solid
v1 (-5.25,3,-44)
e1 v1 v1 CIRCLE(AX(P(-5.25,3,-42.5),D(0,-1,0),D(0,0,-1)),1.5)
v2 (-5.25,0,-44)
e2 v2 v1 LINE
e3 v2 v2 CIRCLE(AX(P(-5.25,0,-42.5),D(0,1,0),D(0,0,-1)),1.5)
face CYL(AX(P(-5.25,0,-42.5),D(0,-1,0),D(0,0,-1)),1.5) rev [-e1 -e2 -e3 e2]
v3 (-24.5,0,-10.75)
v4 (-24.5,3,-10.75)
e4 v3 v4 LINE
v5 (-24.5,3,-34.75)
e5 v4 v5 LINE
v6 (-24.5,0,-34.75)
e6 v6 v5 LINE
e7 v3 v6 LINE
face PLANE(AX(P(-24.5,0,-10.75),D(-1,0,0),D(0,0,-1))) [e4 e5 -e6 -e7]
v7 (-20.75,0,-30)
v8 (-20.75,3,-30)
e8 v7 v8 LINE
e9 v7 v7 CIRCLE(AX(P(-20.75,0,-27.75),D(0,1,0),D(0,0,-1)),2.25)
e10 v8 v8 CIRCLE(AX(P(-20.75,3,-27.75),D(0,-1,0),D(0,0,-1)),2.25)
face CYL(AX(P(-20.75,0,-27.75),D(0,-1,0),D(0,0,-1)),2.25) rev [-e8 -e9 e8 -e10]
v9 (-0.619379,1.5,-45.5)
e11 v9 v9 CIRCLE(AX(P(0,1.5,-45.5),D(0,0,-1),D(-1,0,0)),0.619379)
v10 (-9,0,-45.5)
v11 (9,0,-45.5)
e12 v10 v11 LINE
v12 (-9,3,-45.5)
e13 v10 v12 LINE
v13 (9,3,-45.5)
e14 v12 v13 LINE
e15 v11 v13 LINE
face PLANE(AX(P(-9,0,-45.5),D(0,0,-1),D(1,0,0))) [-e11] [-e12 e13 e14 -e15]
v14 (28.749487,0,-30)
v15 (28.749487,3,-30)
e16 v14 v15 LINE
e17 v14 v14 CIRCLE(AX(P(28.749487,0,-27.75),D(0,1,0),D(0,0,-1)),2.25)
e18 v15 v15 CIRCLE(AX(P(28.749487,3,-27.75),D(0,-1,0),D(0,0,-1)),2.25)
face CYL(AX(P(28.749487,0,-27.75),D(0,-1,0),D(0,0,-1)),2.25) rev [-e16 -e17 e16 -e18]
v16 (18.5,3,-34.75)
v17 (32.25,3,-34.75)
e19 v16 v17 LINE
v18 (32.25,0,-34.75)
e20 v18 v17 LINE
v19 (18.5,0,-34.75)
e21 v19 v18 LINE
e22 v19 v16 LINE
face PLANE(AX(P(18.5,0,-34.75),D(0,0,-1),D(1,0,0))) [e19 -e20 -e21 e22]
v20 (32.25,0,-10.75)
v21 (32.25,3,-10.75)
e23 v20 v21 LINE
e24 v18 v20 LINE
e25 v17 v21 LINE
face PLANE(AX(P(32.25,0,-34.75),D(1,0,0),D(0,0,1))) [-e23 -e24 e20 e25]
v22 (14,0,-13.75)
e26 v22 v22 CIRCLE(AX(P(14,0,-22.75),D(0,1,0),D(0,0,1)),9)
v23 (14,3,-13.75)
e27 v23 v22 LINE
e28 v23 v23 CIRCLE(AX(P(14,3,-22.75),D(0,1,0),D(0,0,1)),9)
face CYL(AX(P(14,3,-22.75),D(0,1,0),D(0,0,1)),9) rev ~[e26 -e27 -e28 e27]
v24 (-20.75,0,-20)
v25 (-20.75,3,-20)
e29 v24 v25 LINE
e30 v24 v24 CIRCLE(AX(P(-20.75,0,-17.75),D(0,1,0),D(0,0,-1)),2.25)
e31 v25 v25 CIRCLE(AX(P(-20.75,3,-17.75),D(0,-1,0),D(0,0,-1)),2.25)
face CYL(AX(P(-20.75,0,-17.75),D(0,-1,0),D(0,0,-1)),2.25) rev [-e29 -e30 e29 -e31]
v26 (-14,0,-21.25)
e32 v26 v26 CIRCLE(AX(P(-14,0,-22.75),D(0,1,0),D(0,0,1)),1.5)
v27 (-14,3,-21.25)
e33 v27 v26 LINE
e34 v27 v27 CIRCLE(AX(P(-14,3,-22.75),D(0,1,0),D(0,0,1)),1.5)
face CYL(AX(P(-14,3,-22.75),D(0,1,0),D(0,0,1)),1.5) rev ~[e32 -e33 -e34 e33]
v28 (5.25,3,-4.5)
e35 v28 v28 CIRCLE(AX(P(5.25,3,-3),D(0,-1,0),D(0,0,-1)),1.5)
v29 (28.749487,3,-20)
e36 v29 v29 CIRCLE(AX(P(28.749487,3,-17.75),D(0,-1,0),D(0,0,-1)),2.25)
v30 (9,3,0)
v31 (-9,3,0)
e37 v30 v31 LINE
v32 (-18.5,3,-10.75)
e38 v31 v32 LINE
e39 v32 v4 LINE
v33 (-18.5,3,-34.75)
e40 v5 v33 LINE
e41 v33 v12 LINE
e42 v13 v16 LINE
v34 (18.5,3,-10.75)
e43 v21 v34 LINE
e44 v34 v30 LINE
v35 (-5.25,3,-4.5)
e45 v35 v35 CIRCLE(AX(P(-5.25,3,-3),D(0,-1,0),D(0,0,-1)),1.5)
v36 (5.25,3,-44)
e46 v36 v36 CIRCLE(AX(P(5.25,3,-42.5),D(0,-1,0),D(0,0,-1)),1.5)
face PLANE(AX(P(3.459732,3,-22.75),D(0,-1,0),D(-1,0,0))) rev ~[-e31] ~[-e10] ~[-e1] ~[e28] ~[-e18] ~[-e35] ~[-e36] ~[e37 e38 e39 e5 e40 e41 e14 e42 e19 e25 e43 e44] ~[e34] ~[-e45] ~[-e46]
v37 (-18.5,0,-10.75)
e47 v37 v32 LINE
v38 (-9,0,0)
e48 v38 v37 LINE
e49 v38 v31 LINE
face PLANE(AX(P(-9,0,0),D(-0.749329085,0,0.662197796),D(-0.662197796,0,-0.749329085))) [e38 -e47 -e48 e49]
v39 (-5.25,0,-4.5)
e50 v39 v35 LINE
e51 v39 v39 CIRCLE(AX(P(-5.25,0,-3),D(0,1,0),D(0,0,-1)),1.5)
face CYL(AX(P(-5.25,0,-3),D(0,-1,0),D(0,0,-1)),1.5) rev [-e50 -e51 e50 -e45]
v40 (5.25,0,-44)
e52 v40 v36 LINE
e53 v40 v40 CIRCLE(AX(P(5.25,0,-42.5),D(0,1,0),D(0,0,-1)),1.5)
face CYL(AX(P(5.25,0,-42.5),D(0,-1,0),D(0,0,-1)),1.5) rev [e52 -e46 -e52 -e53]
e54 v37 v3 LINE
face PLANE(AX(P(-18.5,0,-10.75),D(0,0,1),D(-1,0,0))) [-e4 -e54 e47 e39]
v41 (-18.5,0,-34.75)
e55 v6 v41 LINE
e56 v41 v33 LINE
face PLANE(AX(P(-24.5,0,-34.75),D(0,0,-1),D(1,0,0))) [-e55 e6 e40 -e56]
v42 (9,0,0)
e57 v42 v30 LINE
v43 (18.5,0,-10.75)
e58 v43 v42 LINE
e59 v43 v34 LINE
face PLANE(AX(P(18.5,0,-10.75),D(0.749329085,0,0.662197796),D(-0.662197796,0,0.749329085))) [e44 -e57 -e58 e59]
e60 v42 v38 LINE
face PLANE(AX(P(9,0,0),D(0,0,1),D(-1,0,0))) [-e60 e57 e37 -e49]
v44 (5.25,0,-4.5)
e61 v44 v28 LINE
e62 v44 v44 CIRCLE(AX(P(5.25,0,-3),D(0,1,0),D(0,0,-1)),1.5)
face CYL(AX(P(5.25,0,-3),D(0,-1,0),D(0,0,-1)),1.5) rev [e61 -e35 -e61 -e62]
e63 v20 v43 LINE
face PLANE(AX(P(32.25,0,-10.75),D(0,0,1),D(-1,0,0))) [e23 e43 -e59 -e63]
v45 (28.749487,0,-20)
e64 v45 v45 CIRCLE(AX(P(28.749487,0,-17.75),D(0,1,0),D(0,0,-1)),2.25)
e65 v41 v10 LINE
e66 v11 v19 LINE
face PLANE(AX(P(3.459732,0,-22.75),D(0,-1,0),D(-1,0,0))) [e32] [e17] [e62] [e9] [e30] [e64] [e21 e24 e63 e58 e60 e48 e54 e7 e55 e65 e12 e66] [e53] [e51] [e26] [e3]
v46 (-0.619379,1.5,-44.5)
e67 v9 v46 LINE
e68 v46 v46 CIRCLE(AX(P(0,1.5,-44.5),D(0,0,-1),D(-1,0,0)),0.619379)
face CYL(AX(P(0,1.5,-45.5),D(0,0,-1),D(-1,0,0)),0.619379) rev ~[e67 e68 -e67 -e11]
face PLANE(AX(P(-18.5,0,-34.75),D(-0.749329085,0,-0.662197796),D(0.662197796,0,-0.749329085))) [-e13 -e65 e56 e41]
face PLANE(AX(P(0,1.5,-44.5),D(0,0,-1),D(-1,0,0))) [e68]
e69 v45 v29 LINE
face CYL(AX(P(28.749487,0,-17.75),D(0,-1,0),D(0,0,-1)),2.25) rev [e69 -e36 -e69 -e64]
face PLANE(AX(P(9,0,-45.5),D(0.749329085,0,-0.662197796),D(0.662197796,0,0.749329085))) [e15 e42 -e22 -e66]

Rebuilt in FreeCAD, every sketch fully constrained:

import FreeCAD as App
import Part
import Sketcher

V = App.Vector


def add_polygon(sketch, points):
    """Adds a closed chain of lines whose ends are joined by coincident constraints."""
    first, n = sketch.GeometryCount, len(points)
    for a, b in zip(points, points[1:] + points[:1]):
        sketch.addGeometry(Part.LineSegment(App.Vector(*a, 0), App.Vector(*b, 0)), False)
    for i in range(n):
        sketch.addConstraint(Sketcher.Constraint("Coincident", first + i, 2, first + (i + 1) % n, 1))

doc = App.newDocument("Part")
body = doc.addObject("PartDesign::Body", "Body")

# Sketch on XZ plane
sketch1 = doc.addObject("Sketcher::SketchObject", "Sketch")
body.addObject(sketch1)
sketch1.AttachmentSupport = (doc.XZ_Plane, [""])
sketch1.MapMode = "FlatFace"
add_polygon(sketch1, [(-9, 0), (9, 0), (18.5, -10.75), (32.25, -10.75), (32.25, -34.75), (18.5, -34.75), (9, -45.5), (-9, -45.5), (-18.5, -34.75), (-24.5, -34.75), (-24.5, -10.75), (-18.5, -10.75)])  # lines 0-11
sketch1.addConstraint([
    Sketcher.Constraint("Horizontal", 0),
    Sketcher.Constraint("Horizontal", 2),
    Sketcher.Constraint("Vertical", 3),
    Sketcher.Constraint("Horizontal", 4),
    Sketcher.Constraint("Horizontal", 6),
    Sketcher.Constraint("Horizontal", 8),
    Sketcher.Constraint("Vertical", 9),
    Sketcher.Constraint("Horizontal", 10),
    Sketcher.Constraint("Symmetric", 0, 2, 11, 2, -1, 1),
    Sketcher.Constraint("Symmetric", 4, 2, 7, 2, -2),
    Sketcher.Constraint("Symmetric", 1, 2, 10, 2, -2),
    Sketcher.Constraint("Parallel", 1, 7),
    Sketcher.Constraint("Parallel", 5, 11),
    Sketcher.Constraint("Vertical", 1, 2, 4, 2),
    Sketcher.Constraint("Vertical", 0, 2, 5, 2),
    Sketcher.Constraint("DistanceX", 0, 1, 0, 2, 18.0),
    Sketcher.Constraint("DistanceX", 8, 2, 8, 1, 6.0),
    Sketcher.Constraint("DistanceY", 3, 2, 3, 1, 24.0),
    Sketcher.Constraint("DistanceX", 7, 2, 4, 2, 37.0),
    Sketcher.Constraint("DistanceX", 2, 1, 2, 2, 13.75),
    Sketcher.Constraint("DistanceY", 5, 2, -1, 1, 45.5),
])
pad1 = doc.addObject("PartDesign::Pad", "Pad")
body.addObject(pad1)
pad1.Profile = sketch1
pad1.Length = 3
pad1.Reversed = True

# Sketch on XZ plane
sketch2 = doc.addObject("Sketcher::SketchObject", "Sketch001")
body.addObject(sketch2)
sketch2.AttachmentSupport = (doc.XZ_Plane, [""])
sketch2.MapMode = "FlatFace"
sketch2.AttachmentOffset = App.Placement(V(0, 0, -3), App.Rotation())
sketch2.addGeometry([
    Part.Circle(V(14, -22.75, 0), V(0, 0, 1), 9),
    Part.Circle(V(-14, -22.75, 0), V(0, 0, 1), 1.5),
], False)
sketch2.addConstraint([
    Sketcher.Constraint("Symmetric", 0, 3, 1, 3, -2),
    Sketcher.Constraint("Diameter", 0, 18.0),
    Sketcher.Constraint("Diameter", 1, 3.0),
    Sketcher.Constraint("DistanceX", -1, 1, 0, 3, 14.0),
    Sketcher.Constraint("DistanceY", 0, 3, -1, 1, 22.75),
])
pocket1 = doc.addObject("PartDesign::Pocket", "Pocket")
body.addObject(pocket1)
pocket1.Profile = sketch2
pocket1.Length = 3
pocket1.Reversed = True

# Sketch on XZ plane
sketch3 = doc.addObject("Sketcher::SketchObject", "Sketch002")
body.addObject(sketch3)
sketch3.AttachmentSupport = (doc.XZ_Plane, [""])
sketch3.MapMode = "FlatFace"
sketch3.addGeometry([
    Part.Circle(V(-5.25, -42.5, 0), V(0, 0, 1), 1.5),
    Part.Circle(V(5.25, -42.5, 0), V(0, 0, 1), 1.5),
    Part.Circle(V(5.25, -3, 0), V(0, 0, 1), 1.5),
    Part.Circle(V(-5.25, -3, 0), V(0, 0, 1), 1.5),
], False)
sketch3.addConstraint([
    Sketcher.Constraint("Equal", 0, 1),
    Sketcher.Constraint("Equal", 1, 2),
    Sketcher.Constraint("Equal", 2, 3),
    Sketcher.Constraint("Symmetric", 0, 3, 1, 3, -2),
    Sketcher.Constraint("Symmetric", 2, 3, 3, 3, -2),
    Sketcher.Constraint("Vertical", 1, 3, 2, 3),
    Sketcher.Constraint("Diameter", 0, 3.0),
    Sketcher.Constraint("DistanceY", 2, 3, -1, 1, 3.0),
    Sketcher.Constraint("DistanceY", 0, 3, -1, 1, 42.5),
    Sketcher.Constraint("DistanceX", 0, 3, 1, 3, 10.5),
])
pocket2 = doc.addObject("PartDesign::Pocket", "Pocket001")
body.addObject(pocket2)
pocket2.Profile = sketch3
pocket2.Length = 12

# Sketch on XZ plane
sketch4 = doc.addObject("Sketcher::SketchObject", "Sketch003")
body.addObject(sketch4)
sketch4.AttachmentSupport = (doc.XZ_Plane, [""])
sketch4.MapMode = "FlatFace"
sketch4.addGeometry([
    Part.Circle(V(-20.75, -27.75, 0), V(0, 0, 1), 2.25),
    Part.Circle(V(-20.75, -17.75, 0), V(0, 0, 1), 2.25),
    Part.Circle(V(28.749487, -17.75, 0), V(0, 0, 1), 2.25),
    Part.Circle(V(28.749487, -27.75, 0), V(0, 0, 1), 2.25),
], False)
sketch4.addConstraint([
    Sketcher.Constraint("Equal", 0, 1),
    Sketcher.Constraint("Equal", 1, 2),
    Sketcher.Constraint("Equal", 2, 3),
    Sketcher.Constraint("Horizontal", 1, 3, 2, 3),
    Sketcher.Constraint("Horizontal", 0, 3, 3, 3),
    Sketcher.Constraint("Vertical", 0, 3, 1, 3),
    Sketcher.Constraint("Vertical", 2, 3, 3, 3),
    Sketcher.Constraint("Diameter", 0, 4.5),
    Sketcher.Constraint("DistanceY", 0, 3, 1, 3, 10.0),
    Sketcher.Constraint("DistanceX", 0, 3, -1, 1, 20.75),
    Sketcher.Constraint("DistanceY", 0, 3, -1, 1, 27.75),
    Sketcher.Constraint("DistanceX", -1, 1, 2, 3, 28.749487),
])
pocket3 = doc.addObject("PartDesign::Pocket", "Pocket002")
body.addObject(pocket3)
pocket3.Profile = sketch4
pocket3.Length = 27

# Sketch on XY plane
sketch5 = doc.addObject("Sketcher::SketchObject", "Sketch004")
body.addObject(sketch5)
sketch5.AttachmentSupport = (doc.XY_Plane, [""])
sketch5.MapMode = "FlatFace"
sketch5.AttachmentOffset = App.Placement(V(0, 0, -45.5), App.Rotation())
sketch5.addGeometry(Part.Circle(V(0, 1.5, 0), V(0, 0, 1), 0.619379), False)
sketch5.addConstraint([
    Sketcher.Constraint("PointOnObject", 0, 3, -2),
    Sketcher.Constraint("DistanceY", -1, 1, 0, 3, 1.5),
    Sketcher.Constraint("Diameter", 0, 1.238758),
])
pocket4 = doc.addObject("PartDesign::Pocket", "Pocket003")
body.addObject(pocket4)
pocket4.Profile = sketch5
pocket4.Length = 1
pocket4.Reversed = True

doc.recompute()
